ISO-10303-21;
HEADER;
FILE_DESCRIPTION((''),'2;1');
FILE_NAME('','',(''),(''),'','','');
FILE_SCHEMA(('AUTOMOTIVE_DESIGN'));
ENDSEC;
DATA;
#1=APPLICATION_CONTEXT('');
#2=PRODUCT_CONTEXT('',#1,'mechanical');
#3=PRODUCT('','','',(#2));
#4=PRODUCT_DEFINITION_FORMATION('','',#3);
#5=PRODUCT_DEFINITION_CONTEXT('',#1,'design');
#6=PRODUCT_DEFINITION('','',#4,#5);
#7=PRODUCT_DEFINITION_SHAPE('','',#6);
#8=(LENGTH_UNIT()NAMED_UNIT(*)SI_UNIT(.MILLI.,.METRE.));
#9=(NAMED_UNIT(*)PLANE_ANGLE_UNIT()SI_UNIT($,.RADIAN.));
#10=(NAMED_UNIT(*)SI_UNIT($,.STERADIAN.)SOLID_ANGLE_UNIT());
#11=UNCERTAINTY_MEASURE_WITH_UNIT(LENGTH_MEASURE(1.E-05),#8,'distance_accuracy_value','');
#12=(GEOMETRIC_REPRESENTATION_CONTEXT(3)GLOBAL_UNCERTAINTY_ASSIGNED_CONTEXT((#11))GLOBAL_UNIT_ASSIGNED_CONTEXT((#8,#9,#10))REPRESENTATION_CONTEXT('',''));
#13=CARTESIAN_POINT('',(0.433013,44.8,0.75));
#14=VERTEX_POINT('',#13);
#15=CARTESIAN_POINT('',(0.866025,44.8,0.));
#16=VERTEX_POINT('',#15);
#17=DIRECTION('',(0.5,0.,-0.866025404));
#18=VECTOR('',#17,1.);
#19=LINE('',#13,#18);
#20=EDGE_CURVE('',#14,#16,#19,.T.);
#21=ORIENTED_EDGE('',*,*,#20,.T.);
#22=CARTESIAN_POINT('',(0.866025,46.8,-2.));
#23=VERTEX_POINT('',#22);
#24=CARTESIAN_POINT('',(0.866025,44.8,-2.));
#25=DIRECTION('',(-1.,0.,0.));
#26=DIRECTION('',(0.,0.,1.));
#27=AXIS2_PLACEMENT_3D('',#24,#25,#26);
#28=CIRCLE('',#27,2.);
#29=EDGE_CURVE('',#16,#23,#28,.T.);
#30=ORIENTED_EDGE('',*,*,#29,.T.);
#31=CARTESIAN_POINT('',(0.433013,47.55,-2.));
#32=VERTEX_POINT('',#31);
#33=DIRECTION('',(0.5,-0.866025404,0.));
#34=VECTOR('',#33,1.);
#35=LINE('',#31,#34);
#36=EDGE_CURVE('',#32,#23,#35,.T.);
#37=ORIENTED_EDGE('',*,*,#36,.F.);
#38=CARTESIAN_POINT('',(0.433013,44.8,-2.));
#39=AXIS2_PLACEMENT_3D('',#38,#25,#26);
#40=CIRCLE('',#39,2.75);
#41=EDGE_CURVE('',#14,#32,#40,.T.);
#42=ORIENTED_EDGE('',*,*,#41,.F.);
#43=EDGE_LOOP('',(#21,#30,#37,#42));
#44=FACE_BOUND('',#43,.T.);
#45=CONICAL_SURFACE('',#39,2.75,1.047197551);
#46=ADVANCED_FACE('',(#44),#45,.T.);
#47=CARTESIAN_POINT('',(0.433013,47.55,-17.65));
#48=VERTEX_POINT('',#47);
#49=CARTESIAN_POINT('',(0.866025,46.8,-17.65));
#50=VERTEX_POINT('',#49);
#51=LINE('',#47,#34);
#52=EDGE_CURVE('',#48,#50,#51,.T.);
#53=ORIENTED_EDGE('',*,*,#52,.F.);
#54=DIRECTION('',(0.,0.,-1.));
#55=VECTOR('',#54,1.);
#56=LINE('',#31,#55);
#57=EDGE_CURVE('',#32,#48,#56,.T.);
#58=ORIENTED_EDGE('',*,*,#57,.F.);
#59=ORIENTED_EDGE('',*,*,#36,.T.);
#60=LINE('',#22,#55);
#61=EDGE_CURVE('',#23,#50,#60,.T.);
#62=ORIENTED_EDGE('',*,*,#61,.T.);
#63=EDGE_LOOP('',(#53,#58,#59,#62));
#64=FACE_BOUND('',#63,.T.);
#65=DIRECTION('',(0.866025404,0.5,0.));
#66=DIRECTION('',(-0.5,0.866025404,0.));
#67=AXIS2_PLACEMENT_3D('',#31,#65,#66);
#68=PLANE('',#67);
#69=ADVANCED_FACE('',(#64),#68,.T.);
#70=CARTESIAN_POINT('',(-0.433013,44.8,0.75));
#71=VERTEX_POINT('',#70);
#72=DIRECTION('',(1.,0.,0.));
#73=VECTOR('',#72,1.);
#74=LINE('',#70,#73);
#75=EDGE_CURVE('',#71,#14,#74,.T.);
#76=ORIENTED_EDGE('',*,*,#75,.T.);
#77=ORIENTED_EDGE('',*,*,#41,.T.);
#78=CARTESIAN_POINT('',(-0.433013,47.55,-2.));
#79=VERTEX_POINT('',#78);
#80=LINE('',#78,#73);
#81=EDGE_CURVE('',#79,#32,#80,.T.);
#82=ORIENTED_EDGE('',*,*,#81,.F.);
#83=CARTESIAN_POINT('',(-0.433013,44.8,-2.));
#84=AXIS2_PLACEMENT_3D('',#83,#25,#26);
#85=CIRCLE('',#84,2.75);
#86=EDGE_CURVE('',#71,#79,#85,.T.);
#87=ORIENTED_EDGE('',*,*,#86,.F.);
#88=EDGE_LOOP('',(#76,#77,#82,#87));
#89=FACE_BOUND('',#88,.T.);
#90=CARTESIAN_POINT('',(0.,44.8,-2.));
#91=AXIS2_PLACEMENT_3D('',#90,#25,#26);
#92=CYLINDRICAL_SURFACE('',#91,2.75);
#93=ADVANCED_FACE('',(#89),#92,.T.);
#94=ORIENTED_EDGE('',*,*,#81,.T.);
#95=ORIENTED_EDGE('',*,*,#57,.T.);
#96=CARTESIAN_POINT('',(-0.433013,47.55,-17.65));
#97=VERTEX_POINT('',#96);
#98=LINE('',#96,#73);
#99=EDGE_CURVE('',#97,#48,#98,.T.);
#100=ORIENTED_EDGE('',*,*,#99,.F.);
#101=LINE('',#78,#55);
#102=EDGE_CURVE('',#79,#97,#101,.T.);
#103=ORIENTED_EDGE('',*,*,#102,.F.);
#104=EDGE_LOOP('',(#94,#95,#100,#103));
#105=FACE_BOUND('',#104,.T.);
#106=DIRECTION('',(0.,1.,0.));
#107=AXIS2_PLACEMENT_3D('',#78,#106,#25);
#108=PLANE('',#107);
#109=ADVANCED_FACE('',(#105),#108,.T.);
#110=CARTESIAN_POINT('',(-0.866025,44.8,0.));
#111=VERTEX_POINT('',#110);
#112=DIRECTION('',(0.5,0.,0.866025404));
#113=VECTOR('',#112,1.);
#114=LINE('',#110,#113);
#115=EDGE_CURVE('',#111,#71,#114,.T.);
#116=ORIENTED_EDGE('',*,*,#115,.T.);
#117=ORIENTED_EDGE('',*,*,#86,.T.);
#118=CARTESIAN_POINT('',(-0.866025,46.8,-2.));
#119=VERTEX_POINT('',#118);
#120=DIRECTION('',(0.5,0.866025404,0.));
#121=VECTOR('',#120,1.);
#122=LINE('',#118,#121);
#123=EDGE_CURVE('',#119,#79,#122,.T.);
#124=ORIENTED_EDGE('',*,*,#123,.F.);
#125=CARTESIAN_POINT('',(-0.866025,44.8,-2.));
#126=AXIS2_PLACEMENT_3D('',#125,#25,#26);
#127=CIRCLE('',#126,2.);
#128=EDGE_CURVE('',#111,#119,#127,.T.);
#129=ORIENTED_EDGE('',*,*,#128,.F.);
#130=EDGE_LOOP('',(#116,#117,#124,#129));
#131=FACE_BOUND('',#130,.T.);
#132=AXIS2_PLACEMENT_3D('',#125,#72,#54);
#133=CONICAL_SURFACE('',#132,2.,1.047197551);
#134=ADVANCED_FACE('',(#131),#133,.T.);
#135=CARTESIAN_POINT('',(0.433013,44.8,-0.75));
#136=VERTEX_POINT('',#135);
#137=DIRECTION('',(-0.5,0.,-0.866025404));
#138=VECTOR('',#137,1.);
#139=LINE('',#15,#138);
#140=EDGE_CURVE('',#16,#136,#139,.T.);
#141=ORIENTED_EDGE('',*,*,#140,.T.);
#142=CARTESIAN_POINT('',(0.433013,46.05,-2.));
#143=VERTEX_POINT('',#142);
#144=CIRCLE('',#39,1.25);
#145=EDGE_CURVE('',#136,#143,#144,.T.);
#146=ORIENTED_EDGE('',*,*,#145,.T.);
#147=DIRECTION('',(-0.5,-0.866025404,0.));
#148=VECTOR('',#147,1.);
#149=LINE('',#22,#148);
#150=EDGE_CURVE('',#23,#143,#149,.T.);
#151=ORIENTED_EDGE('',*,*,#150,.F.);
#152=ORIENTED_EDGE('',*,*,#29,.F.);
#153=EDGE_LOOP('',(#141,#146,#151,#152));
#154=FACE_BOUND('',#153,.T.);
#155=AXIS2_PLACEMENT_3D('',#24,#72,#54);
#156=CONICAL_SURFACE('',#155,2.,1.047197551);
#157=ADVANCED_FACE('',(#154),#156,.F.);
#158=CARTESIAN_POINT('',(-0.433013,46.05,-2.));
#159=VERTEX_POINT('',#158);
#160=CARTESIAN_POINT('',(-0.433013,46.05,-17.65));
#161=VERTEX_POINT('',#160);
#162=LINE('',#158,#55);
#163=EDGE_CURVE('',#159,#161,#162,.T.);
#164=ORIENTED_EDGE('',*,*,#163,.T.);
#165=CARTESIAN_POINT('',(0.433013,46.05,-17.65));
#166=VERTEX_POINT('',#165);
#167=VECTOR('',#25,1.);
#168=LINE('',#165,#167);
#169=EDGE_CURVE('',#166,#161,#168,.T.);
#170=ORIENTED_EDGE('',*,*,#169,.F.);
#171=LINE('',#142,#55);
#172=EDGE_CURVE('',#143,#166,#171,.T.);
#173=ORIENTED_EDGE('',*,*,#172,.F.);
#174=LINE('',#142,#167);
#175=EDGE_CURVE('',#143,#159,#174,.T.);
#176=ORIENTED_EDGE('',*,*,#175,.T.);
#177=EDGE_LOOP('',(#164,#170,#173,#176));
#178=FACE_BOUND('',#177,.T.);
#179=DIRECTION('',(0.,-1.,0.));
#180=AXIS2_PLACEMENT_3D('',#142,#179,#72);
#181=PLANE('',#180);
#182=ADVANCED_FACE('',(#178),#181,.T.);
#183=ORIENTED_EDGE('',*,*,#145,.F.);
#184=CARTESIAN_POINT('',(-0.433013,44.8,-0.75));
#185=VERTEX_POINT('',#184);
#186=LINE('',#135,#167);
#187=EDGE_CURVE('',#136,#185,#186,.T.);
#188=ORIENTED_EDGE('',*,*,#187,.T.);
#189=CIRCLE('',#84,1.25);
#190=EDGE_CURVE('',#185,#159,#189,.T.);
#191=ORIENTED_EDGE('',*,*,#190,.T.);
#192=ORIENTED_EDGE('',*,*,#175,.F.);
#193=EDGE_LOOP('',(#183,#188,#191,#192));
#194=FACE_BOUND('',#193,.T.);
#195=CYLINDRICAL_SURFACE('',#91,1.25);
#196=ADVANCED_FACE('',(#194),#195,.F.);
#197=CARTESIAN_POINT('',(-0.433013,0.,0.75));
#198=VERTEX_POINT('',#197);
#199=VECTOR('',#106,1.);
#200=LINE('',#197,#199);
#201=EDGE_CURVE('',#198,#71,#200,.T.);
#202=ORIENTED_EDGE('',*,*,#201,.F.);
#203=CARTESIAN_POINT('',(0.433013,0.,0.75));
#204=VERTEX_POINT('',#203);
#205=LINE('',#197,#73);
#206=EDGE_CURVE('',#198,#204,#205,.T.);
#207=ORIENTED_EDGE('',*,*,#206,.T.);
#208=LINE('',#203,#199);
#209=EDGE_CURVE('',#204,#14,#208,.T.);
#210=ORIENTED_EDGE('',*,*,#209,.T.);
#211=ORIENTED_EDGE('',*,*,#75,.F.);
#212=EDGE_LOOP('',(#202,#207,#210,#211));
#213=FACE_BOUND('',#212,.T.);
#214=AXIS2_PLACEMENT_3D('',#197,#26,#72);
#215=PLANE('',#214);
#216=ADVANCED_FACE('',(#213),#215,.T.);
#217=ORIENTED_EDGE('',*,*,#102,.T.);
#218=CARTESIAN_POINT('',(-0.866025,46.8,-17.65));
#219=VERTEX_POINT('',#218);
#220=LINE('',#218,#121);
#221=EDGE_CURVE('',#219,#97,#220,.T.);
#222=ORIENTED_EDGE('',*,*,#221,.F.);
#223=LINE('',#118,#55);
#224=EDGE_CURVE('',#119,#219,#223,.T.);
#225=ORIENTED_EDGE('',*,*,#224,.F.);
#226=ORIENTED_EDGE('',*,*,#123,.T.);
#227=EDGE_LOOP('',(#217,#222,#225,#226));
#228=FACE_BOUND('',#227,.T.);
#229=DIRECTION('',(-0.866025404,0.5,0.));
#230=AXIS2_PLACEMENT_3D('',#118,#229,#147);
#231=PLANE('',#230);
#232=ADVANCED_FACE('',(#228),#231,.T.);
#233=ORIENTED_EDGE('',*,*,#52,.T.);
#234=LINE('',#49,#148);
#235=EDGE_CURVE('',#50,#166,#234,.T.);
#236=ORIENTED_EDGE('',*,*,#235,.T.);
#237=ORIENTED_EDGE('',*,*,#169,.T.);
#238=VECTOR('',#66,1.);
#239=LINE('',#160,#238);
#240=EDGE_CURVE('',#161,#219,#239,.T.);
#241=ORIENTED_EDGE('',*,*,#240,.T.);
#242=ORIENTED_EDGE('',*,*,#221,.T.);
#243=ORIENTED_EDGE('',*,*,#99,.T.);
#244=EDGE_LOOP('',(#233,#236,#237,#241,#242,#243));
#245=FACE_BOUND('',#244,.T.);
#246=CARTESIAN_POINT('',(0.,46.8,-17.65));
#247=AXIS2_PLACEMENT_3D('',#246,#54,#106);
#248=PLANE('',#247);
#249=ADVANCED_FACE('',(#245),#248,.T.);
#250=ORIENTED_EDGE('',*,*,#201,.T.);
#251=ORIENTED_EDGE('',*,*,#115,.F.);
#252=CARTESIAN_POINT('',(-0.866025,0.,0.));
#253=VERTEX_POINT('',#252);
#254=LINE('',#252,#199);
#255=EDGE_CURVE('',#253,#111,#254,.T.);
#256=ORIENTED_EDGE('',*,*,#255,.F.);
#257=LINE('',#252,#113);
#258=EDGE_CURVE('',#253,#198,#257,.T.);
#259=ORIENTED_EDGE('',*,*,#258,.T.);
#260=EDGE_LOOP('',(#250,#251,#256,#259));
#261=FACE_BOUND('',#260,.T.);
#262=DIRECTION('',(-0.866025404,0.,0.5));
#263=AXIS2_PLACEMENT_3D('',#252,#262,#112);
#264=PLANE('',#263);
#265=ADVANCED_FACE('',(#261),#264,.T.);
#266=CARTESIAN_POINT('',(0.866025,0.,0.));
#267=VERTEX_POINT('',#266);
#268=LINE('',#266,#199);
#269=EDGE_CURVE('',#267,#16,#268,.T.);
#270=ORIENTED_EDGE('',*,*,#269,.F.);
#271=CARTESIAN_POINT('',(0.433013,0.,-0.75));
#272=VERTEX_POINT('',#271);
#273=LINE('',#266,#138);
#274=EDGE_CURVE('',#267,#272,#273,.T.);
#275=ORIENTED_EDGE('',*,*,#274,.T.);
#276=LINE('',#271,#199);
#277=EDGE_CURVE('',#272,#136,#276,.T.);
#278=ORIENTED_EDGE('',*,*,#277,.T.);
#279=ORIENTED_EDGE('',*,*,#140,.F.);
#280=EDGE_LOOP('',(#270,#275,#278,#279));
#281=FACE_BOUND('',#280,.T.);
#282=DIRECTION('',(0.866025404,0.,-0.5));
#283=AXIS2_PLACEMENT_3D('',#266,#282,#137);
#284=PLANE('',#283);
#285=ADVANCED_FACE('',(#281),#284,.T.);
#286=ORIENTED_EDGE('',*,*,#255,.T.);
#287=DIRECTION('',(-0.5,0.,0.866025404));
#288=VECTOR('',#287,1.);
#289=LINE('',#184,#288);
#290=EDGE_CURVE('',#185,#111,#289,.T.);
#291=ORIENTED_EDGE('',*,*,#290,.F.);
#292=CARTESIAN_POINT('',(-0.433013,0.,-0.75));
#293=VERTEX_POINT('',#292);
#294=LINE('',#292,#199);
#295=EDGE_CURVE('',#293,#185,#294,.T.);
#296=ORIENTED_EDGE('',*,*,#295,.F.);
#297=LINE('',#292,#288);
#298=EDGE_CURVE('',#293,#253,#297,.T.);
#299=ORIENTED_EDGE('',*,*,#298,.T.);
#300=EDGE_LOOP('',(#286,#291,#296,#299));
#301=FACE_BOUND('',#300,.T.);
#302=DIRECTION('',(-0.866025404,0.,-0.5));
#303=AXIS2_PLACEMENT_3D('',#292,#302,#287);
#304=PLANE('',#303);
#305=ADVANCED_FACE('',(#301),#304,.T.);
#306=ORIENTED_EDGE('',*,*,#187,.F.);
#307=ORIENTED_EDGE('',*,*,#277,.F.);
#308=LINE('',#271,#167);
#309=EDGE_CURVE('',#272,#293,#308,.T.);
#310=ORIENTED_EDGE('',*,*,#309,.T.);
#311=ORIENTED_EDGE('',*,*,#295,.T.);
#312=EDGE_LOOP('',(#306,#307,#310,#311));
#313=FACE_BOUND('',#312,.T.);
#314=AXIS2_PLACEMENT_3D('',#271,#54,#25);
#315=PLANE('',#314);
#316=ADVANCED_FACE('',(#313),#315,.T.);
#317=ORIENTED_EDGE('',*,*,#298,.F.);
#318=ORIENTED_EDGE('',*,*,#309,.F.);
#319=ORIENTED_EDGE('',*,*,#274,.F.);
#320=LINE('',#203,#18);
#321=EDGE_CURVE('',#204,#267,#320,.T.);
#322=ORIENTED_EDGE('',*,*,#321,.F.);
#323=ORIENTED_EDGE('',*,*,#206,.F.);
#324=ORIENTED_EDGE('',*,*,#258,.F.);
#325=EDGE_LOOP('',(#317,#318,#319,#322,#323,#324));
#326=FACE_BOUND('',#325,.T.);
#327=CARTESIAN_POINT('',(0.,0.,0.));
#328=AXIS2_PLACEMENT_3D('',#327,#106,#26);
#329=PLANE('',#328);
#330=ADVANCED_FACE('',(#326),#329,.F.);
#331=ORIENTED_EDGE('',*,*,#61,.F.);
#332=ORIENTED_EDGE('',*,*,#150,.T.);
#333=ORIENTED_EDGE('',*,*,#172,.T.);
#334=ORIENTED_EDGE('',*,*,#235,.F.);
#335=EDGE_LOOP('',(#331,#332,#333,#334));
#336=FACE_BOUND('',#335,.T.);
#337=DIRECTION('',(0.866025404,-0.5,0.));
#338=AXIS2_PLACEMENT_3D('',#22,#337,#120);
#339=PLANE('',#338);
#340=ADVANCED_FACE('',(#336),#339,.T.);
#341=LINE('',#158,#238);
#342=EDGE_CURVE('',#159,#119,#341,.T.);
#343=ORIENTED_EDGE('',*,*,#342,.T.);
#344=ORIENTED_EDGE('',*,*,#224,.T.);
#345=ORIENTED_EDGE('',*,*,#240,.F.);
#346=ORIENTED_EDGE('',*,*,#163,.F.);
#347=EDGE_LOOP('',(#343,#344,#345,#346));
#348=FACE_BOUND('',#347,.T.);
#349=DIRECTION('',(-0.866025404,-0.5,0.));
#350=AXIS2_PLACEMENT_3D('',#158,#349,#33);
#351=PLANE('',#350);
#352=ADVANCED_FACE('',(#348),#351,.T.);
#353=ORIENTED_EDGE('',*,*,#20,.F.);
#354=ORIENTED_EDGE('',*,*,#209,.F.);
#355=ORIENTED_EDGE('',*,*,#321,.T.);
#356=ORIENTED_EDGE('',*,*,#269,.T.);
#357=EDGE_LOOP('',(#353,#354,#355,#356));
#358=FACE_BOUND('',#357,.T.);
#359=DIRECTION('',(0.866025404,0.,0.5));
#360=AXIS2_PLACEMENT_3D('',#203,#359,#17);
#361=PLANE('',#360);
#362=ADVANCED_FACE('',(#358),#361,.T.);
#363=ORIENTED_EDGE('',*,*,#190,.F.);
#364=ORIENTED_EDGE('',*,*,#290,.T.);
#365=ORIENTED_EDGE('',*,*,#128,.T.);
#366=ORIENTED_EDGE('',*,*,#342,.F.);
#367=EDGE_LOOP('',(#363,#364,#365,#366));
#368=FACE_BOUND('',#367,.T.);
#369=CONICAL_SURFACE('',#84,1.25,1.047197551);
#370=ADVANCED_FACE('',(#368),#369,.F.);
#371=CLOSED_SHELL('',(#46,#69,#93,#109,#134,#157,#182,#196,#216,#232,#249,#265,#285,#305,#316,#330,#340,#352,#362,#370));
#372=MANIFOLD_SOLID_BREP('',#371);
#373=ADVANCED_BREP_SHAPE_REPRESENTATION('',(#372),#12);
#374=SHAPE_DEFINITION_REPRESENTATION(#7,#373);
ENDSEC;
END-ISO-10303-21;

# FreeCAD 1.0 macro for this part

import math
import FreeCAD as App
import Part
import Sketcher
from FreeCAD import Vector
Q = App.Units.Quantity

doc = App.newDocument("Part")
body = doc.addObject("PartDesign::Body", "Body")

# Sketch on XZ plane
sketch1 = body.newObject("Sketcher::SketchObject", "Sketch")
sketch1.AttachmentSupport = (doc.getObject("XZ_Plane"), [""])
sketch1.MapMode = "FlatFace"
sketch1.addGeometry(Part.LineSegment(Vector(0.9, 0, 0), Vector(0.4, -0.8, 0)), False)
sketch1.addGeometry(Part.LineSegment(Vector(0.4, -0.8, 0), Vector(-0.4, -0.8, 0)), False)
sketch1.addGeometry(Part.LineSegment(Vector(-0.4, -0.8, 0), Vector(-0.9, 0, 0)), False)
sketch1.addGeometry(Part.LineSegment(Vector(-0.9, 0, 0), Vector(-0.4, 0.8, 0)), False)
sketch1.addGeometry(Part.LineSegment(Vector(-0.4, 0.8, 0), Vector(0.4, 0.8, 0)), False)
sketch1.addGeometry(Part.LineSegment(Vector(0.4, 0.8, 0), Vector(0.9, 0, 0)), False)
sketch1.addConstraint(Sketcher.Constraint("Coincident", 0, 2, 1, 1))
sketch1.addConstraint(Sketcher.Constraint("Coincident", 1, 2, 2, 1))
sketch1.addConstraint(Sketcher.Constraint("Coincident", 2, 2, 3, 1))
sketch1.addConstraint(Sketcher.Constraint("Coincident", 3, 2, 4, 1))
sketch1.addConstraint(Sketcher.Constraint("Coincident", 4, 2, 5, 1))
sketch1.addConstraint(Sketcher.Constraint("Coincident", 5, 2, 0, 1))
sketch1.addConstraint(Sketcher.Constraint("Horizontal", 1))
sketch1.addConstraint(Sketcher.Constraint("Horizontal", 4))
sketch1.addConstraint(Sketcher.Constraint("Symmetric", 0, 2, 3, 2, -1, 1))
sketch1.addConstraint(Sketcher.Constraint("Symmetric", 2, 2, 5, 2, -1, 1))
sketch1.addConstraint(Sketcher.Constraint("PointOnObject", 2, 2, -1))
sketch1.addConstraint(Sketcher.Constraint("Parallel", 2, 5))
sketch1.addConstraint(Sketcher.Constraint("Vertical", 1, 2, 3, 2))
sketch1.addConstraint(Sketcher.Constraint("Angle", 0, Q("-120 deg")))
sketch1.addConstraint(Sketcher.Constraint("DistanceY", 1, 2, 3, 2, Q("1.5 mm")))
sketch1.addConstraint(Sketcher.Constraint("DistanceX", 1, 2, 1, 1, Q("0.866025 mm")))

# Sketch on YZ plane
sketch2 = body.newObject("Sketcher::SketchObject", "Sketch001")
sketch2.AttachmentSupport = (doc.getObject("YZ_Plane"), [""])
sketch2.MapMode = "FlatFace"
sketch2.addGeometry(Part.LineSegment(Vector(0, 0, 0), Vector(44.8, 0, 0)), False)
sketch2.addGeometry(Part.ArcOfCircle(Part.Circle(Vector(44.8, -2, 0), Vector(0, 0, 1), 2), math.radians(0), math.radians(90)), False)
sketch2.addGeometry(Part.LineSegment(Vector(46.8, -2, 0), Vector(46.8, -17.6, 0)), False)
sketch2.addConstraint(Sketcher.Constraint("Tangent", 0, 2, 1, 2))
sketch2.addConstraint(Sketcher.Constraint("Tangent", 1, 1, 2, 1))
sketch2.addConstraint(Sketcher.Constraint("Horizontal", 0))
sketch2.addConstraint(Sketcher.Constraint("Vertical", 2))
sketch2.addConstraint(Sketcher.Constraint("Coincident", 0, 1, -1, 1))
sketch2.addConstraint(Sketcher.Constraint("Radius", 1, Q("2 mm")))
sketch2.addConstraint(Sketcher.Constraint("DistanceX", 0, 1, 0, 2, Q("44.8 mm")))
sketch2.addConstraint(Sketcher.Constraint("DistanceY", 2, 2, 2, 1, Q("15.65 mm")))
doc.recompute()

additivepipe = body.newObject("PartDesign::AdditivePipe", "AdditivePipe")
additivepipe.Profile = sketch1
additivepipe.Spine = (sketch2, ["Edge1", "Edge2", "Edge3"])

doc.recompute()
